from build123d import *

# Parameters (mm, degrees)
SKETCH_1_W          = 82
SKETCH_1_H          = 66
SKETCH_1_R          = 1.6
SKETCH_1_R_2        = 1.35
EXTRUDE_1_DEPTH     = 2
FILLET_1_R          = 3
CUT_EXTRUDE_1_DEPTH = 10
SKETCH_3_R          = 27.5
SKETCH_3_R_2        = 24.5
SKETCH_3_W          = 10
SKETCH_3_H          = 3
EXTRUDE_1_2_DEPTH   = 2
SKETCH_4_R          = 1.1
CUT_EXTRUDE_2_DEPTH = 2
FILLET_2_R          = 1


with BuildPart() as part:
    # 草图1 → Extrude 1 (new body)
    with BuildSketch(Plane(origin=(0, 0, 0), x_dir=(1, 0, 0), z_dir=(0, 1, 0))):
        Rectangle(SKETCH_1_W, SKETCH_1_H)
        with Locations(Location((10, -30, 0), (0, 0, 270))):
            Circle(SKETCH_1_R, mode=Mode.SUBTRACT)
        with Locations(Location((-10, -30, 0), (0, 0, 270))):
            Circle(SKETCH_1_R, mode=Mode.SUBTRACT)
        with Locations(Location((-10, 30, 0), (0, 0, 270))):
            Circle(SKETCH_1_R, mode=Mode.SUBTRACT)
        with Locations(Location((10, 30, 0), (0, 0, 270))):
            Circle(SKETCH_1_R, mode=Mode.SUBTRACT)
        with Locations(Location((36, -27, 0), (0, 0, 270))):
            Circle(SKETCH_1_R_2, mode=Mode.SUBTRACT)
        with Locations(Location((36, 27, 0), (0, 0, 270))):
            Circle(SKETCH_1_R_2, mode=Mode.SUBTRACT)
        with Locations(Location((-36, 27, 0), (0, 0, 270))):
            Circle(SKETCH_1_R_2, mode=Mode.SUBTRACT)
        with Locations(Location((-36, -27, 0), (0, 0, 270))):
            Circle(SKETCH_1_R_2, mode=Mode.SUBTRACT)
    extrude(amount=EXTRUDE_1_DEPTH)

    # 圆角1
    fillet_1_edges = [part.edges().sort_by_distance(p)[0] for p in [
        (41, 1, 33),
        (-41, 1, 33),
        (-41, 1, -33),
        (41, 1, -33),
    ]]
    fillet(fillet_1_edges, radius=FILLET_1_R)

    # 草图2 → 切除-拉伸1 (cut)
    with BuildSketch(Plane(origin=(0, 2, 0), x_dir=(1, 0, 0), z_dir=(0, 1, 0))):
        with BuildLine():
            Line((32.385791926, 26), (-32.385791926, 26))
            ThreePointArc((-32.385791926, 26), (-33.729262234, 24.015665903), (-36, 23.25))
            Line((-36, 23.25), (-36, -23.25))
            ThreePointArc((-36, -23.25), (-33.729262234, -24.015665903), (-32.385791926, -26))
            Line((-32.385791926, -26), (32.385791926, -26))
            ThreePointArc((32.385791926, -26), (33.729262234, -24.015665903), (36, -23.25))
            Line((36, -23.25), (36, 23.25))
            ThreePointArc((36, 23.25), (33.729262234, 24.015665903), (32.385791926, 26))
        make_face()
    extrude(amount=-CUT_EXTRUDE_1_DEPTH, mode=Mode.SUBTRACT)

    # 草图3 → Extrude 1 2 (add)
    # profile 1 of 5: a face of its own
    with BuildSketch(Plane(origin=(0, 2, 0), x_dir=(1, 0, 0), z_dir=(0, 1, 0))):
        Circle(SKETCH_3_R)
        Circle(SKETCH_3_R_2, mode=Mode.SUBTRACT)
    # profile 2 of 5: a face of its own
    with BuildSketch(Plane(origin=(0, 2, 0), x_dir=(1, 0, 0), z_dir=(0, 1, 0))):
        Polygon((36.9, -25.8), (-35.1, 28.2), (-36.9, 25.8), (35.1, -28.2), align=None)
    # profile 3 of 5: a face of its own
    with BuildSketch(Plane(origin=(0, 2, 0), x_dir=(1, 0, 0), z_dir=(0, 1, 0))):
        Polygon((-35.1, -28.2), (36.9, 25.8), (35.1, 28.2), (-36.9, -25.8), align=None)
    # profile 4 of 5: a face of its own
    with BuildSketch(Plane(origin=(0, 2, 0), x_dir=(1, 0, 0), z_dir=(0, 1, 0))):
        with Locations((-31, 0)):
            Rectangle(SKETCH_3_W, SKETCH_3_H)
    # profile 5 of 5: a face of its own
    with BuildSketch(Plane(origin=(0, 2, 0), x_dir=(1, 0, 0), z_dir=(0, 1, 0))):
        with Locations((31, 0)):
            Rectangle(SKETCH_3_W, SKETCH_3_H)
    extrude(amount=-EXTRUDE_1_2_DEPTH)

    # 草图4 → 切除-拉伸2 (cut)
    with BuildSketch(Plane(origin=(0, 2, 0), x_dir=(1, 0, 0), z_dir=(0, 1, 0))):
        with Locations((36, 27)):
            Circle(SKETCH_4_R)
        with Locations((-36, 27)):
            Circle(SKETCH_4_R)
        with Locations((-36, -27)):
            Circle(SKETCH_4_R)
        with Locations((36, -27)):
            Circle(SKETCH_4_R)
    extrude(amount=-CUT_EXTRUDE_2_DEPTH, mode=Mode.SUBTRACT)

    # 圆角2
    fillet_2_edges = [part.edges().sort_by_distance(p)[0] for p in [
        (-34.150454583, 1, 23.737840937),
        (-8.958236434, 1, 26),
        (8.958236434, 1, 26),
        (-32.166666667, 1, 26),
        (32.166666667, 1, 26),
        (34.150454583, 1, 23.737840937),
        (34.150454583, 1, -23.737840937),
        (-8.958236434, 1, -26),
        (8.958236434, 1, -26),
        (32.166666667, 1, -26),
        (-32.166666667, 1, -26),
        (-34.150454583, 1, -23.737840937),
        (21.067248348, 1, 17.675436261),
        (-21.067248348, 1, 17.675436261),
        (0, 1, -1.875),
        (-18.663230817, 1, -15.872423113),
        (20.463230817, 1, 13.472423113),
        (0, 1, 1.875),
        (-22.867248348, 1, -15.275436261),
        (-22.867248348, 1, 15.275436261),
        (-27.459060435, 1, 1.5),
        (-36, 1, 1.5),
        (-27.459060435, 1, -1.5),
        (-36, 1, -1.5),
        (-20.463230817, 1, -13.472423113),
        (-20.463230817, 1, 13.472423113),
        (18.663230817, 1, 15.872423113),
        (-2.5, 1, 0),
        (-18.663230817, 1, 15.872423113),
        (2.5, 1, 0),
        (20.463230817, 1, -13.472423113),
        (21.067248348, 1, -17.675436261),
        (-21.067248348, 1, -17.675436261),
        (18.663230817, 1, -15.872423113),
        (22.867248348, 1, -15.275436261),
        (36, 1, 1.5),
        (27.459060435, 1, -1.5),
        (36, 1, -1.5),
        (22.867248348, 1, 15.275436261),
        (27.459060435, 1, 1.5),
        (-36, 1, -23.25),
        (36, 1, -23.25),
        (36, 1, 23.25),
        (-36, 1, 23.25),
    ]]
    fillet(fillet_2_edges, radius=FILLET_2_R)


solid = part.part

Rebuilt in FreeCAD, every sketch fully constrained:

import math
import FreeCAD as App
import Part
import Sketcher
from FreeCAD import Vector
Q = App.Units.Quantity


def edges_at(feature, points):
    """Names of the edges that pass closest to the given points."""
    edges = feature.Shape.Edges
    near = lambda p: min(range(len(edges)), key=lambda i: edges[i].distToShape(Part.Vertex(*p))[0])
    return sorted({f"Edge{near(p) + 1}" for p in points})


def add_polygon(sketch, points):
    """Adds a closed chain of lines whose ends are joined by coincident constraints."""
    first, n = sketch.GeometryCount, len(points)
    for a, b in zip(points, points[1:] + points[:1]):
        sketch.addGeometry(Part.LineSegment(App.Vector(*a, 0), App.Vector(*b, 0)), False)
    for i in range(n):
        sketch.addConstraint(Sketcher.Constraint("Coincident", first + i, 2, first + (i + 1) % n, 1))

doc = App.newDocument("Part")
params = doc.addObject("Spreadsheet::Sheet", "Params")
for row, (alias, value) in enumerate([
    ("sketch1_diameter", "2.7 mm"),
    ("sketch1_diameter2", "3.2 mm"),
    ("sketch1_width", "82 mm"),
    ("sketch1_height", "66 mm"),
    ("pad1_length", "2 mm"),
    ("fillet_radius", "3 mm"),
    ("sketch2_radius", "3.75 mm"),
    ("sketch2_height", "46.5 mm"),
    ("pocket1_length", "10 mm"),
    ("sketch3_radius", "27.5 mm"),
    ("sketch3_radius2", "24.5 mm"),
    ("sketch3_height", "3 mm"),
    ("sketch3_length", "3 mm"),
    ("pad2_length", "2 mm"),
    ("sketch4_diameter", "2.2 mm"),
    ("pocket2_length", "2 mm"),
    ("fillet2_radius", "1 mm"),
], start=1):
    params.set(f"A{row}", alias)
    params.set(f"B{row}", "=" + value)
    params.setAlias(f"B{row}", alias)

body = doc.addObject("PartDesign::Body", "Body")

# Sketch on XZ plane
sketch1 = body.newObject("Sketcher::SketchObject", "Sketch")
sketch1.AttachmentSupport = (doc.getObject("XZ_Plane"), [""])
sketch1.MapMode = "FlatFace"
add_polygon(sketch1, [(-41, -33), (-41, 33), (41, 33), (41, -33)])  # lines 0-3
sketch1.addGeometry(Part.Circle(Vector(-36, 27, 0), Vector(0, 0, 1), 1.4), False)  # 4
sketch1.addGeometry(Part.Circle(Vector(-10, 30, 0), Vector(0, 0, 1), 1.6), False)  # 5
sketch1.addGeometry(Part.Circle(Vector(10, 30, 0), Vector(0, 0, 1), 1.6), False)  # 6
sketch1.addGeometry(Part.Circle(Vector(36, 27, 0), Vector(0, 0, 1), 1.4), False)  # 7
sketch1.addGeometry(Part.Circle(Vector(-36, -27, 0), Vector(0, 0, 1), 1.4), False)  # 8
sketch1.addGeometry(Part.Circle(Vector(-10, -30, 0), Vector(0, 0, 1), 1.6), False)  # 9
sketch1.addGeometry(Part.Circle(Vector(10, -30, 0), Vector(0, 0, 1), 1.6), False)  # 10
sketch1.addGeometry(Part.Circle(Vector(36, -27, 0), Vector(0, 0, 1), 1.4), False)  # 11
sketch1.addConstraint([
    Sketcher.Constraint("Vertical", 0),
    Sketcher.Constraint("Horizontal", 1),
    Sketcher.Constraint("Vertical", 2),
    Sketcher.Constraint("Horizontal", 3),
    Sketcher.Constraint("Equal", 5, 6),
    Sketcher.Constraint("Equal", 4, 7),
    Sketcher.Constraint("Equal", 7, 8),
    Sketcher.Constraint("Equal", 6, 9),
    Sketcher.Constraint("Equal", 9, 10),
    Sketcher.Constraint("Equal", 8, 11),
    Sketcher.Constraint("Symmetric", 7, 3, 8, 3, -1, 1),
    Sketcher.Constraint("Symmetric", 6, 3, 9, 3, -1, 1),
    Sketcher.Constraint("Symmetric", 5, 3, 10, 3, -1, 1),
    Sketcher.Constraint("Symmetric", 4, 3, 11, 3, -1, 1),
    Sketcher.Constraint("Symmetric", 0, 2, 2, 2, -1, 1),
    Sketcher.Constraint("Symmetric", 5, 3, 6, 3, -2),
    Sketcher.Constraint("Symmetric", 4, 3, 7, 3, -2),
    Sketcher.Constraint("Diameter", 4, Q("2.7 mm")),
    Sketcher.Constraint("Diameter", 5, Q("3.2 mm")),
    Sketcher.Constraint("DistanceX", 1, 1, 1, 2, Q("82 mm")),
    Sketcher.Constraint("DistanceY", 0, 1, 0, 2, Q("66 mm")),
    Sketcher.Constraint("DistanceX", 4, 3, -1, 1, Q("36 mm")),
    Sketcher.Constraint("DistanceY", -1, 1, 4, 3, Q("27 mm")),
    Sketcher.Constraint("DistanceX", 5, 3, -1, 1, Q("10 mm")),
    Sketcher.Constraint("DistanceY", -1, 1, 5, 3, Q("30 mm")),
])
sketch1.setExpression("Constraints[21]", "Params.sketch1_diameter")
sketch1.setExpression("Constraints[22]", "Params.sketch1_diameter2")
sketch1.setExpression("Constraints[23]", "Params.sketch1_width")
sketch1.setExpression("Constraints[24]", "Params.sketch1_height")
pad1 = body.newObject("PartDesign::Pad", "Pad")
pad1.Profile = sketch1
pad1.setExpression("Length", "Params.pad1_length")
pad1.Reversed = True
doc.recompute()

fillet = body.newObject("PartDesign::Fillet", "Fillet")
fillet.Base = (pad1, edges_at(pad1, [
    (41, 1, 33),
    (-41, 1, 33),
    (-41, 1, -33),
    (41, 1, -33),
]))
fillet.setExpression("Radius", "Params.fillet_radius")

# Sketch on XZ plane
sketch2 = body.newObject("Sketcher::SketchObject", "Sketch001")
sketch2.AttachmentSupport = (doc.getObject("XZ_Plane"), [""])
sketch2.MapMode = "FlatFace"
sketch2.AttachmentOffset = App.Placement(Vector(0, 0, -2), App.Rotation())
sketch2.addGeometry([
    Part.LineSegment(Vector(32.4, -26, 0), Vector(-32.4, -26, 0)),  # 0
    Part.ArcOfCircle(Part.Circle(Vector(-36, -27, 0), Vector(0, 0, 1), 3.7), math.radians(15), math.radians(90)),  # 1
    Part.LineSegment(Vector(-36, -23.2, 0), Vector(-36, 23.2, 0)),  # 2
    Part.ArcOfCircle(Part.Circle(Vector(-36, 27, 0), Vector(0, 0, 1), 3.7), math.radians(-90), math.radians(-15)),  # 3
    Part.LineSegment(Vector(-32.4, 26, 0), Vector(32.4, 26, 0)),  # 4
    Part.ArcOfCircle(Part.Circle(Vector(36, 27, 0), Vector(0, 0, 1), 3.7), math.radians(-165), math.radians(-90)),  # 5
    Part.LineSegment(Vector(36, 23.2, 0), Vector(36, -23.2, 0)),  # 6
    Part.ArcOfCircle(Part.Circle(Vector(36, -27, 0), Vector(0, 0, 1), 3.7), math.radians(90), math.radians(165)),  # 7
], False)
sketch2.addConstraint([
    Sketcher.Constraint("Coincident", 0, 2, 1, 1),
    Sketcher.Constraint("Coincident", 1, 2, 2, 1),
    Sketcher.Constraint("Coincident", 2, 2, 3, 1),
    Sketcher.Constraint("Coincident", 3, 2, 4, 1),
    Sketcher.Constraint("Coincident", 4, 2, 5, 1),
    Sketcher.Constraint("Coincident", 5, 2, 6, 1),
    Sketcher.Constraint("Coincident", 6, 2, 7, 1),
    Sketcher.Constraint("Coincident", 7, 2, 0, 1),
    Sketcher.Constraint("Horizontal", 0),
    Sketcher.Constraint("Vertical", 2),
    Sketcher.Constraint("Horizontal", 4),
    Sketcher.Constraint("Vertical", 6),
    Sketcher.Constraint("Equal", 1, 3),
    Sketcher.Constraint("Equal", 3, 5),
    Sketcher.Constraint("Equal", 5, 7),
    Sketcher.Constraint("Symmetric", 1, 3, 5, 3, -1, 1),
    Sketcher.Constraint("Symmetric", 3, 3, 7, 3, -1, 1),
    Sketcher.Constraint("Symmetric", 3, 3, 5, 3, -2),
    Sketcher.Constraint("Vertical", 3, 3, 1, 2),
    Sketcher.Constraint("Vertical", 0, 2, 3, 2),
    Sketcher.Constraint("Vertical", 7, 3, 5, 2),
    Sketcher.Constraint("Radius", 1, Q("3.75 mm")),
    Sketcher.Constraint("DistanceY", 2, 1, 2, 2, Q("46.5 mm")),
    Sketcher.Constraint("DistanceX", 1, 3, -1, 1, Q("36 mm")),
    Sketcher.Constraint("DistanceY", 0, 2, -1, 1, Q("26 mm")),
])
sketch2.setExpression("Constraints[21]", "Params.sketch2_radius")
sketch2.setExpression("Constraints[22]", "Params.sketch2_height")
pocket1 = body.newObject("PartDesign::Pocket", "Pocket")
pocket1.Profile = sketch2
pocket1.setExpression("Length", "Params.pocket1_length")
pocket1.Reversed = True

# Sketch on XZ plane
sketch3 = body.newObject("Sketcher::SketchObject", "Sketch002")
sketch3.AttachmentSupport = (doc.getObject("XZ_Plane"), [""])
sketch3.MapMode = "FlatFace"
sketch3.AttachmentOffset = App.Placement(Vector(0, 0, -2), App.Rotation())
sketch3.addGeometry([
    Part.LineSegment(Vector(27.5, 1.5, 0), Vector(36, 1.5, 0)),  # 0
    Part.LineSegment(Vector(36, 1.5, 0), Vector(36, -1.5, 0)),  # 1
    Part.LineSegment(Vector(36, -1.5, 0), Vector(27.5, -1.5, 0)),  # 2
    Part.ArcOfCircle(Part.Circle(Vector(0, 0, 0), Vector(0, 0, 1), 27.5), math.radians(-34), math.radians(-3)),  # 3
    Part.LineSegment(Vector(22.9, -15.3, 0), Vector(36.9, -25.8, 0)),  # 4
    Part.LineSegment(Vector(36.9, -25.8, 0), Vector(35.1, -28.2, 0)),  # 5
    Part.LineSegment(Vector(35.1, -28.2, 0), Vector(21.1, -17.7, 0)),  # 6
    Part.ArcOfCircle(Part.Circle(Vector(0, 0, 0), Vector(0, 0, 1), 27.5), math.radians(-140), math.radians(-40)),  # 7
    Part.LineSegment(Vector(-21.1, -17.7, 0), Vector(-35.1, -28.2, 0)),  # 8
    Part.LineSegment(Vector(-35.1, -28.2, 0), Vector(-36.9, -25.8, 0)),  # 9
    Part.LineSegment(Vector(-36.9, -25.8, 0), Vector(-22.9, -15.3, 0)),  # 10
    Part.ArcOfCircle(Part.Circle(Vector(0, 0, 0), Vector(0, 0, 1), 27.5), math.radians(-177), math.radians(-146)),  # 11
    Part.LineSegment(Vector(-27.5, -1.5, 0), Vector(-36, -1.5, 0)),  # 12
    Part.LineSegment(Vector(-36, -1.5, 0), Vector(-36, 1.5, 0)),  # 13
    Part.LineSegment(Vector(-36, 1.5, 0), Vector(-27.5, 1.5, 0)),  # 14
    Part.ArcOfCircle(Part.Circle(Vector(0, 0, 0), Vector(0, 0, 1), 27.5), math.radians(146), math.radians(177)),  # 15
    Part.LineSegment(Vector(-22.9, 15.3, 0), Vector(-36.9, 25.8, 0)),  # 16
    Part.LineSegment(Vector(-36.9, 25.8, 0), Vector(-35.1, 28.2, 0)),  # 17
    Part.LineSegment(Vector(-35.1, 28.2, 0), Vector(-21.1, 17.7, 0)),  # 18
    Part.ArcOfCircle(Part.Circle(Vector(0, 0, 0), Vector(0, 0, 1), 27.5), math.radians(40), math.radians(140)),  # 19
    Part.LineSegment(Vector(21.1, 17.7, 0), Vector(35.1, 28.2, 0)),  # 20
    Part.LineSegment(Vector(35.1, 28.2, 0), Vector(36.9, 25.8, 0)),  # 21
    Part.LineSegment(Vector(36.9, 25.8, 0), Vector(22.9, 15.3, 0)),  # 22
    Part.ArcOfCircle(Part.Circle(Vector(0, 0, 0), Vector(0, 0, 1), 27.5), math.radians(3), math.radians(34)),  # 23
    Part.ArcOfCircle(Part.Circle(Vector(0, 0, 0), Vector(0, 0, 1), 24.5), math.radians(-33), math.radians(33)),  # 24
    Part.LineSegment(Vector(20.5, 13.5, 0), Vector(2.5, 0, 0)),  # 25
    Part.LineSegment(Vector(2.5, 0, 0), Vector(20.5, -13.5, 0)),  # 26
    Part.LineSegment(Vector(18.7, -15.9, 0), Vector(0, -1.9, 0)),  # 27
    Part.LineSegment(Vector(0, -1.9, 0), Vector(-18.7, -15.9, 0)),  # 28
    Part.ArcOfCircle(Part.Circle(Vector(0, 0, 0), Vector(0, 0, 1), 24.5), math.radians(-140), math.radians(-40)),  # 29
    Part.ArcOfCircle(Part.Circle(Vector(0, 0, 0), Vector(0, 0, 1), 24.5), math.radians(40), math.radians(140)),  # 30
    Part.LineSegment(Vector(-18.7, 15.9, 0), Vector(0, 1.9, 0)),  # 31
    Part.LineSegment(Vector(0, 1.9, 0), Vector(18.7, 15.9, 0)),  # 32
    Part.LineSegment(Vector(-20.5, -13.5, 0), Vector(-2.5, 0, 0)),  # 33
    Part.LineSegment(Vector(-2.5, 0, 0), Vector(-20.5, 13.5, 0)),  # 34
    Part.ArcOfCircle(Part.Circle(Vector(0, 0, 0), Vector(0, 0, 1), 24.5), math.radians(147), math.radians(213)),  # 35
], False)
sketch3.addConstraint([
    Sketcher.Constraint("Coincident", 0, 2, 1, 1),
    Sketcher.Constraint("Coincident", 1, 2, 2, 1),
    Sketcher.Constraint("Coincident", 2, 2, 3, 2),
    Sketcher.Constraint("Coincident", 3, 1, 4, 1),
    Sketcher.Constraint("Coincident", 4, 2, 5, 1),
    Sketcher.Constraint("Coincident", 5, 2, 6, 1),
    Sketcher.Constraint("Coincident", 6, 2, 7, 2),
    Sketcher.Constraint("Coincident", 7, 1, 8, 1),
    Sketcher.Constraint("Coincident", 8, 2, 9, 1),
    Sketcher.Constraint("Coincident", 9, 2, 10, 1),
    Sketcher.Constraint("Coincident", 10, 2, 11, 2),
    Sketcher.Constraint("Coincident", 11, 1, 12, 1),
    Sketcher.Constraint("Coincident", 12, 2, 13, 1),
    Sketcher.Constraint("Coincident", 13, 2, 14, 1),
    Sketcher.Constraint("Coincident", 14, 2, 15, 2),
    Sketcher.Constraint("Coincident", 15, 1, 16, 1),
    Sketcher.Constraint("Coincident", 16, 2, 17, 1),
    Sketcher.Constraint("Coincident", 17, 2, 18, 1),
    Sketcher.Constraint("Coincident", 18, 2, 19, 2),
    Sketcher.Constraint("Coincident", 19, 1, 20, 1),
    Sketcher.Constraint("Coincident", 20, 2, 21, 1),
    Sketcher.Constraint("Coincident", 21, 2, 22, 1),
    Sketcher.Constraint("Coincident", 22, 2, 23, 2),
    Sketcher.Constraint("Coincident", 23, 1, 0, 1),
    Sketcher.Constraint("Coincident", 24, 2, 25, 1),
    Sketcher.Constraint("Coincident", 25, 2, 26, 1),
    Sketcher.Constraint("Coincident", 26, 2, 24, 1),
    Sketcher.Constraint("Coincident", 27, 2, 28, 1),
    Sketcher.Constraint("Coincident", 28, 2, 29, 1),
    Sketcher.Constraint("Coincident", 29, 2, 27, 1),
    Sketcher.Constraint("Coincident", 30, 2, 31, 1),
    Sketcher.Constraint("Coincident", 31, 2, 32, 1),
    Sketcher.Constraint("Coincident", 32, 2, 30, 1),
    Sketcher.Constraint("Coincident", 33, 2, 34, 1),
    Sketcher.Constraint("Coincident", 34, 2, 35, 1),
    Sketcher.Constraint("Coincident", 35, 2, 33, 1),
    Sketcher.Constraint("Horizontal", 0),
    Sketcher.Constraint("Vertical", 1),
    Sketcher.Constraint("Horizontal", 2),
    Sketcher.Constraint("Horizontal", 12),
    Sketcher.Constraint("Vertical", 13),
    Sketcher.Constraint("Horizontal", 14),
    Sketcher.Constraint("Coincident", 3, 3, -1, 1),
    Sketcher.Constraint("Coincident", 7, 3, -1, 1),
    Sketcher.Constraint("Coincident", 11, 3, -1, 1),
    Sketcher.Constraint("Coincident", 15, 3, -1, 1),
    Sketcher.Constraint("Coincident", 19, 3, -1, 1),
    Sketcher.Constraint("Coincident", 23, 3, -1, 1),
    Sketcher.Constraint("Coincident", 24, 3, -1, 1),
    Sketcher.Constraint("Coincident", 29, 3, -1, 1),
    Sketcher.Constraint("Coincident", 30, 3, -1, 1),
    Sketcher.Constraint("Coincident", 35, 3, -1, 1),
    Sketcher.Constraint("Equal", 3, 7),
    Sketcher.Constraint("Equal", 7, 11),
    Sketcher.Constraint("Equal", 11, 15),
    Sketcher.Constraint("Equal", 15, 19),
    Sketcher.Constraint("Equal", 19, 23),
    Sketcher.Constraint("Equal", 24, 29),
    Sketcher.Constraint("Equal", 29, 30),
    Sketcher.Constraint("Equal", 30, 35),
    Sketcher.Constraint("Symmetric", 0, 2, 12, 2, -1, 1),
    Sketcher.Constraint("Symmetric", 4, 2, 16, 2, -1, 1),
    Sketcher.Constraint("Symmetric", 5, 2, 17, 2, -1, 1),
    Sketcher.Constraint("Symmetric", 8, 2, 20, 2, -1, 1),
    Sketcher.Constraint("Symmetric", 9, 2, 21, 2, -1, 1),
    Sketcher.Constraint("Symmetric", 27, 2, 31, 2, -1, 1),
    Sketcher.Constraint("Symmetric", 25, 2, 33, 2, -1, 1),
    Sketcher.Constraint("Symmetric", 5, 2, 8, 2, -2),
    Sketcher.Constraint("Symmetric", 4, 2, 9, 2, -2),
    Sketcher.Constraint("PointOnObject", 25, 2, -1),
    Sketcher.Constraint("PointOnObject", 27, 2, -2),
    Sketcher.Constraint("Perpendicular", 4, 5),
    Sketcher.Constraint("Perpendicular", 5, 6),
    Sketcher.Constraint("Perpendicular", 8, 9),
    Sketcher.Constraint("Perpendicular", 9, 10),
    Sketcher.Constraint("Parallel", 6, 16),
    Sketcher.Constraint("Perpendicular", 17, 18),
    Sketcher.Constraint("Parallel", 10, 20),
    Sketcher.Constraint("Perpendicular", 21, 22),
    Sketcher.Constraint("Parallel", 22, 25),
    Sketcher.Constraint("Parallel", 18, 26),
    Sketcher.Constraint("Parallel", 26, 27),
    Sketcher.Constraint("Parallel", 25, 28),
    Sketcher.Constraint("Parallel", 27, 31),
    Sketcher.Constraint("Parallel", 28, 32),
    Sketcher.Constraint("Parallel", 32, 33),
    Sketcher.Constraint("Parallel", 31, 34),
    Sketcher.Constraint("Horizontal", 2, 2, 11, 1),
    Sketcher.Constraint("Horizontal", 0, 2, 13, 2),
    Sketcher.Constraint("Equal", 4, 6),
    Sketcher.Constraint("Radius", 3, Q("27.5 mm")),
    Sketcher.Constraint("Radius", 24, Q("24.5 mm")),
    Sketcher.Constraint("DistanceY", 1, 2, 1, 1, Q("3 mm")),
    Sketcher.Constraint("Distance", 5, Q("3 mm")),
    Sketcher.Constraint("DistanceX", -1, 1, 0, 2, Q("36 mm")),
    Sketcher.Constraint("DistanceX", -1, 1, 4, 2, Q("36.9 mm")),
    Sketcher.Constraint("DistanceY", 4, 2, -1, 1, Q("25.8 mm")),
    Sketcher.Constraint("DistanceX", -1, 1, 25, 2, Q("2.5 mm")),
    Sketcher.Constraint("DistanceX", 29, 2, 26, 2, Q("1.8 mm")),
])
sketch3.setExpression("Constraints[90]", "Params.sketch3_radius")
sketch3.setExpression("Constraints[91]", "Params.sketch3_radius2")
sketch3.setExpression("Constraints[92]", "Params.sketch3_height")
sketch3.setExpression("Constraints[93]", "Params.sketch3_length")
pad2 = body.newObject("PartDesign::Pad", "Pad001")
pad2.Profile = sketch3
pad2.setExpression("Length", "Params.pad2_length")

# Sketch on XZ plane
sketch4 = body.newObject("Sketcher::SketchObject", "Sketch003")
sketch4.AttachmentSupport = (doc.getObject("XZ_Plane"), [""])
sketch4.MapMode = "FlatFace"
sketch4.AttachmentOffset = App.Placement(Vector(0, 0, -2), App.Rotation())
sketch4.addGeometry([
    Part.Circle(Vector(36, -27, 0), Vector(0, 0, 1), 1.1),
    Part.Circle(Vector(-36, -27, 0), Vector(0, 0, 1), 1.1),
    Part.Circle(Vector(-36, 27, 0), Vector(0, 0, 1), 1.1),
    Part.Circle(Vector(36, 27, 0), Vector(0, 0, 1), 1.1),
], False)
sketch4.addConstraint([
    Sketcher.Constraint("Equal", 0, 1),
    Sketcher.Constraint("Equal", 1, 2),
    Sketcher.Constraint("Equal", 2, 3),
    Sketcher.Constraint("Symmetric", 0, 3, 2, 3, -1, 1),
    Sketcher.Constraint("Symmetric", 1, 3, 3, 3, -1, 1),
    Sketcher.Constraint("Symmetric", 0, 3, 1, 3, -2),
    Sketcher.Constraint("Diameter", 0, Q("2.2 mm")),
    Sketcher.Constraint("DistanceX", -1, 1, 0, 3, Q("36 mm")),
    Sketcher.Constraint("DistanceY", 0, 3, -1, 1, Q("27 mm")),
])
sketch4.setExpression("Constraints[6]", "Params.sketch4_diameter")
pocket2 = body.newObject("PartDesign::Pocket", "Pocket001")
pocket2.Profile = sketch4
pocket2.setExpression("Length", "Params.pocket2_length")
pocket2.Reversed = True
doc.recompute()

fillet2 = body.newObject("PartDesign::Fillet", "Fillet001")
fillet2.Base = (pocket2, edges_at(pocket2, [
    (-34.15, 1, 23.738),
    (-8.958, 1, 26),
    (8.958, 1, 26),
    (-32.167, 1, 26),
    (32.167, 1, 26),
    (34.15, 1, 23.738),
    (34.15, 1, -23.738),
    (-8.958, 1, -26),
    (8.958, 1, -26),
    (32.167, 1, -26),
    (-32.167, 1, -26),
    (-34.15, 1, -23.738),
    (21.067, 1, 17.675),
    (-21.067, 1, 17.675),
    (0, 1, -1.875),
    (-18.663, 1, -15.872),
    (20.463, 1, 13.472),
    (0, 1, 1.875),
    (-22.867, 1, -15.275),
    (-22.867, 1, 15.275),
    (-27.459, 1, 1.5),
    (-36, 1, 1.5),
    (-27.459, 1, -1.5),
    (-36, 1, -1.5),
    (-20.463, 1, -13.472),
    (-20.463, 1, 13.472),
    (18.663, 1, 15.872),
    (-2.5, 1, 0),
    (-18.663, 1, 15.872),
    (2.5, 1, 0),
    (20.463, 1, -13.472),
    (21.067, 1, -17.675),
    (-21.067, 1, -17.675),
    (18.663, 1, -15.872),
    (22.867, 1, -15.275),
    (36, 1, 1.5),
    (27.459, 1, -1.5),
    (36, 1, -1.5),
    (22.867, 1, 15.275),
    (27.459, 1, 1.5),
    (-36, 1, -23.25),
    (36, 1, -23.25),
    (36, 1, 23.25),
    (-36, 1, 23.25),
]))
fillet2.setExpression("Radius", "Params.fillet2_radius")

doc.recompute()
